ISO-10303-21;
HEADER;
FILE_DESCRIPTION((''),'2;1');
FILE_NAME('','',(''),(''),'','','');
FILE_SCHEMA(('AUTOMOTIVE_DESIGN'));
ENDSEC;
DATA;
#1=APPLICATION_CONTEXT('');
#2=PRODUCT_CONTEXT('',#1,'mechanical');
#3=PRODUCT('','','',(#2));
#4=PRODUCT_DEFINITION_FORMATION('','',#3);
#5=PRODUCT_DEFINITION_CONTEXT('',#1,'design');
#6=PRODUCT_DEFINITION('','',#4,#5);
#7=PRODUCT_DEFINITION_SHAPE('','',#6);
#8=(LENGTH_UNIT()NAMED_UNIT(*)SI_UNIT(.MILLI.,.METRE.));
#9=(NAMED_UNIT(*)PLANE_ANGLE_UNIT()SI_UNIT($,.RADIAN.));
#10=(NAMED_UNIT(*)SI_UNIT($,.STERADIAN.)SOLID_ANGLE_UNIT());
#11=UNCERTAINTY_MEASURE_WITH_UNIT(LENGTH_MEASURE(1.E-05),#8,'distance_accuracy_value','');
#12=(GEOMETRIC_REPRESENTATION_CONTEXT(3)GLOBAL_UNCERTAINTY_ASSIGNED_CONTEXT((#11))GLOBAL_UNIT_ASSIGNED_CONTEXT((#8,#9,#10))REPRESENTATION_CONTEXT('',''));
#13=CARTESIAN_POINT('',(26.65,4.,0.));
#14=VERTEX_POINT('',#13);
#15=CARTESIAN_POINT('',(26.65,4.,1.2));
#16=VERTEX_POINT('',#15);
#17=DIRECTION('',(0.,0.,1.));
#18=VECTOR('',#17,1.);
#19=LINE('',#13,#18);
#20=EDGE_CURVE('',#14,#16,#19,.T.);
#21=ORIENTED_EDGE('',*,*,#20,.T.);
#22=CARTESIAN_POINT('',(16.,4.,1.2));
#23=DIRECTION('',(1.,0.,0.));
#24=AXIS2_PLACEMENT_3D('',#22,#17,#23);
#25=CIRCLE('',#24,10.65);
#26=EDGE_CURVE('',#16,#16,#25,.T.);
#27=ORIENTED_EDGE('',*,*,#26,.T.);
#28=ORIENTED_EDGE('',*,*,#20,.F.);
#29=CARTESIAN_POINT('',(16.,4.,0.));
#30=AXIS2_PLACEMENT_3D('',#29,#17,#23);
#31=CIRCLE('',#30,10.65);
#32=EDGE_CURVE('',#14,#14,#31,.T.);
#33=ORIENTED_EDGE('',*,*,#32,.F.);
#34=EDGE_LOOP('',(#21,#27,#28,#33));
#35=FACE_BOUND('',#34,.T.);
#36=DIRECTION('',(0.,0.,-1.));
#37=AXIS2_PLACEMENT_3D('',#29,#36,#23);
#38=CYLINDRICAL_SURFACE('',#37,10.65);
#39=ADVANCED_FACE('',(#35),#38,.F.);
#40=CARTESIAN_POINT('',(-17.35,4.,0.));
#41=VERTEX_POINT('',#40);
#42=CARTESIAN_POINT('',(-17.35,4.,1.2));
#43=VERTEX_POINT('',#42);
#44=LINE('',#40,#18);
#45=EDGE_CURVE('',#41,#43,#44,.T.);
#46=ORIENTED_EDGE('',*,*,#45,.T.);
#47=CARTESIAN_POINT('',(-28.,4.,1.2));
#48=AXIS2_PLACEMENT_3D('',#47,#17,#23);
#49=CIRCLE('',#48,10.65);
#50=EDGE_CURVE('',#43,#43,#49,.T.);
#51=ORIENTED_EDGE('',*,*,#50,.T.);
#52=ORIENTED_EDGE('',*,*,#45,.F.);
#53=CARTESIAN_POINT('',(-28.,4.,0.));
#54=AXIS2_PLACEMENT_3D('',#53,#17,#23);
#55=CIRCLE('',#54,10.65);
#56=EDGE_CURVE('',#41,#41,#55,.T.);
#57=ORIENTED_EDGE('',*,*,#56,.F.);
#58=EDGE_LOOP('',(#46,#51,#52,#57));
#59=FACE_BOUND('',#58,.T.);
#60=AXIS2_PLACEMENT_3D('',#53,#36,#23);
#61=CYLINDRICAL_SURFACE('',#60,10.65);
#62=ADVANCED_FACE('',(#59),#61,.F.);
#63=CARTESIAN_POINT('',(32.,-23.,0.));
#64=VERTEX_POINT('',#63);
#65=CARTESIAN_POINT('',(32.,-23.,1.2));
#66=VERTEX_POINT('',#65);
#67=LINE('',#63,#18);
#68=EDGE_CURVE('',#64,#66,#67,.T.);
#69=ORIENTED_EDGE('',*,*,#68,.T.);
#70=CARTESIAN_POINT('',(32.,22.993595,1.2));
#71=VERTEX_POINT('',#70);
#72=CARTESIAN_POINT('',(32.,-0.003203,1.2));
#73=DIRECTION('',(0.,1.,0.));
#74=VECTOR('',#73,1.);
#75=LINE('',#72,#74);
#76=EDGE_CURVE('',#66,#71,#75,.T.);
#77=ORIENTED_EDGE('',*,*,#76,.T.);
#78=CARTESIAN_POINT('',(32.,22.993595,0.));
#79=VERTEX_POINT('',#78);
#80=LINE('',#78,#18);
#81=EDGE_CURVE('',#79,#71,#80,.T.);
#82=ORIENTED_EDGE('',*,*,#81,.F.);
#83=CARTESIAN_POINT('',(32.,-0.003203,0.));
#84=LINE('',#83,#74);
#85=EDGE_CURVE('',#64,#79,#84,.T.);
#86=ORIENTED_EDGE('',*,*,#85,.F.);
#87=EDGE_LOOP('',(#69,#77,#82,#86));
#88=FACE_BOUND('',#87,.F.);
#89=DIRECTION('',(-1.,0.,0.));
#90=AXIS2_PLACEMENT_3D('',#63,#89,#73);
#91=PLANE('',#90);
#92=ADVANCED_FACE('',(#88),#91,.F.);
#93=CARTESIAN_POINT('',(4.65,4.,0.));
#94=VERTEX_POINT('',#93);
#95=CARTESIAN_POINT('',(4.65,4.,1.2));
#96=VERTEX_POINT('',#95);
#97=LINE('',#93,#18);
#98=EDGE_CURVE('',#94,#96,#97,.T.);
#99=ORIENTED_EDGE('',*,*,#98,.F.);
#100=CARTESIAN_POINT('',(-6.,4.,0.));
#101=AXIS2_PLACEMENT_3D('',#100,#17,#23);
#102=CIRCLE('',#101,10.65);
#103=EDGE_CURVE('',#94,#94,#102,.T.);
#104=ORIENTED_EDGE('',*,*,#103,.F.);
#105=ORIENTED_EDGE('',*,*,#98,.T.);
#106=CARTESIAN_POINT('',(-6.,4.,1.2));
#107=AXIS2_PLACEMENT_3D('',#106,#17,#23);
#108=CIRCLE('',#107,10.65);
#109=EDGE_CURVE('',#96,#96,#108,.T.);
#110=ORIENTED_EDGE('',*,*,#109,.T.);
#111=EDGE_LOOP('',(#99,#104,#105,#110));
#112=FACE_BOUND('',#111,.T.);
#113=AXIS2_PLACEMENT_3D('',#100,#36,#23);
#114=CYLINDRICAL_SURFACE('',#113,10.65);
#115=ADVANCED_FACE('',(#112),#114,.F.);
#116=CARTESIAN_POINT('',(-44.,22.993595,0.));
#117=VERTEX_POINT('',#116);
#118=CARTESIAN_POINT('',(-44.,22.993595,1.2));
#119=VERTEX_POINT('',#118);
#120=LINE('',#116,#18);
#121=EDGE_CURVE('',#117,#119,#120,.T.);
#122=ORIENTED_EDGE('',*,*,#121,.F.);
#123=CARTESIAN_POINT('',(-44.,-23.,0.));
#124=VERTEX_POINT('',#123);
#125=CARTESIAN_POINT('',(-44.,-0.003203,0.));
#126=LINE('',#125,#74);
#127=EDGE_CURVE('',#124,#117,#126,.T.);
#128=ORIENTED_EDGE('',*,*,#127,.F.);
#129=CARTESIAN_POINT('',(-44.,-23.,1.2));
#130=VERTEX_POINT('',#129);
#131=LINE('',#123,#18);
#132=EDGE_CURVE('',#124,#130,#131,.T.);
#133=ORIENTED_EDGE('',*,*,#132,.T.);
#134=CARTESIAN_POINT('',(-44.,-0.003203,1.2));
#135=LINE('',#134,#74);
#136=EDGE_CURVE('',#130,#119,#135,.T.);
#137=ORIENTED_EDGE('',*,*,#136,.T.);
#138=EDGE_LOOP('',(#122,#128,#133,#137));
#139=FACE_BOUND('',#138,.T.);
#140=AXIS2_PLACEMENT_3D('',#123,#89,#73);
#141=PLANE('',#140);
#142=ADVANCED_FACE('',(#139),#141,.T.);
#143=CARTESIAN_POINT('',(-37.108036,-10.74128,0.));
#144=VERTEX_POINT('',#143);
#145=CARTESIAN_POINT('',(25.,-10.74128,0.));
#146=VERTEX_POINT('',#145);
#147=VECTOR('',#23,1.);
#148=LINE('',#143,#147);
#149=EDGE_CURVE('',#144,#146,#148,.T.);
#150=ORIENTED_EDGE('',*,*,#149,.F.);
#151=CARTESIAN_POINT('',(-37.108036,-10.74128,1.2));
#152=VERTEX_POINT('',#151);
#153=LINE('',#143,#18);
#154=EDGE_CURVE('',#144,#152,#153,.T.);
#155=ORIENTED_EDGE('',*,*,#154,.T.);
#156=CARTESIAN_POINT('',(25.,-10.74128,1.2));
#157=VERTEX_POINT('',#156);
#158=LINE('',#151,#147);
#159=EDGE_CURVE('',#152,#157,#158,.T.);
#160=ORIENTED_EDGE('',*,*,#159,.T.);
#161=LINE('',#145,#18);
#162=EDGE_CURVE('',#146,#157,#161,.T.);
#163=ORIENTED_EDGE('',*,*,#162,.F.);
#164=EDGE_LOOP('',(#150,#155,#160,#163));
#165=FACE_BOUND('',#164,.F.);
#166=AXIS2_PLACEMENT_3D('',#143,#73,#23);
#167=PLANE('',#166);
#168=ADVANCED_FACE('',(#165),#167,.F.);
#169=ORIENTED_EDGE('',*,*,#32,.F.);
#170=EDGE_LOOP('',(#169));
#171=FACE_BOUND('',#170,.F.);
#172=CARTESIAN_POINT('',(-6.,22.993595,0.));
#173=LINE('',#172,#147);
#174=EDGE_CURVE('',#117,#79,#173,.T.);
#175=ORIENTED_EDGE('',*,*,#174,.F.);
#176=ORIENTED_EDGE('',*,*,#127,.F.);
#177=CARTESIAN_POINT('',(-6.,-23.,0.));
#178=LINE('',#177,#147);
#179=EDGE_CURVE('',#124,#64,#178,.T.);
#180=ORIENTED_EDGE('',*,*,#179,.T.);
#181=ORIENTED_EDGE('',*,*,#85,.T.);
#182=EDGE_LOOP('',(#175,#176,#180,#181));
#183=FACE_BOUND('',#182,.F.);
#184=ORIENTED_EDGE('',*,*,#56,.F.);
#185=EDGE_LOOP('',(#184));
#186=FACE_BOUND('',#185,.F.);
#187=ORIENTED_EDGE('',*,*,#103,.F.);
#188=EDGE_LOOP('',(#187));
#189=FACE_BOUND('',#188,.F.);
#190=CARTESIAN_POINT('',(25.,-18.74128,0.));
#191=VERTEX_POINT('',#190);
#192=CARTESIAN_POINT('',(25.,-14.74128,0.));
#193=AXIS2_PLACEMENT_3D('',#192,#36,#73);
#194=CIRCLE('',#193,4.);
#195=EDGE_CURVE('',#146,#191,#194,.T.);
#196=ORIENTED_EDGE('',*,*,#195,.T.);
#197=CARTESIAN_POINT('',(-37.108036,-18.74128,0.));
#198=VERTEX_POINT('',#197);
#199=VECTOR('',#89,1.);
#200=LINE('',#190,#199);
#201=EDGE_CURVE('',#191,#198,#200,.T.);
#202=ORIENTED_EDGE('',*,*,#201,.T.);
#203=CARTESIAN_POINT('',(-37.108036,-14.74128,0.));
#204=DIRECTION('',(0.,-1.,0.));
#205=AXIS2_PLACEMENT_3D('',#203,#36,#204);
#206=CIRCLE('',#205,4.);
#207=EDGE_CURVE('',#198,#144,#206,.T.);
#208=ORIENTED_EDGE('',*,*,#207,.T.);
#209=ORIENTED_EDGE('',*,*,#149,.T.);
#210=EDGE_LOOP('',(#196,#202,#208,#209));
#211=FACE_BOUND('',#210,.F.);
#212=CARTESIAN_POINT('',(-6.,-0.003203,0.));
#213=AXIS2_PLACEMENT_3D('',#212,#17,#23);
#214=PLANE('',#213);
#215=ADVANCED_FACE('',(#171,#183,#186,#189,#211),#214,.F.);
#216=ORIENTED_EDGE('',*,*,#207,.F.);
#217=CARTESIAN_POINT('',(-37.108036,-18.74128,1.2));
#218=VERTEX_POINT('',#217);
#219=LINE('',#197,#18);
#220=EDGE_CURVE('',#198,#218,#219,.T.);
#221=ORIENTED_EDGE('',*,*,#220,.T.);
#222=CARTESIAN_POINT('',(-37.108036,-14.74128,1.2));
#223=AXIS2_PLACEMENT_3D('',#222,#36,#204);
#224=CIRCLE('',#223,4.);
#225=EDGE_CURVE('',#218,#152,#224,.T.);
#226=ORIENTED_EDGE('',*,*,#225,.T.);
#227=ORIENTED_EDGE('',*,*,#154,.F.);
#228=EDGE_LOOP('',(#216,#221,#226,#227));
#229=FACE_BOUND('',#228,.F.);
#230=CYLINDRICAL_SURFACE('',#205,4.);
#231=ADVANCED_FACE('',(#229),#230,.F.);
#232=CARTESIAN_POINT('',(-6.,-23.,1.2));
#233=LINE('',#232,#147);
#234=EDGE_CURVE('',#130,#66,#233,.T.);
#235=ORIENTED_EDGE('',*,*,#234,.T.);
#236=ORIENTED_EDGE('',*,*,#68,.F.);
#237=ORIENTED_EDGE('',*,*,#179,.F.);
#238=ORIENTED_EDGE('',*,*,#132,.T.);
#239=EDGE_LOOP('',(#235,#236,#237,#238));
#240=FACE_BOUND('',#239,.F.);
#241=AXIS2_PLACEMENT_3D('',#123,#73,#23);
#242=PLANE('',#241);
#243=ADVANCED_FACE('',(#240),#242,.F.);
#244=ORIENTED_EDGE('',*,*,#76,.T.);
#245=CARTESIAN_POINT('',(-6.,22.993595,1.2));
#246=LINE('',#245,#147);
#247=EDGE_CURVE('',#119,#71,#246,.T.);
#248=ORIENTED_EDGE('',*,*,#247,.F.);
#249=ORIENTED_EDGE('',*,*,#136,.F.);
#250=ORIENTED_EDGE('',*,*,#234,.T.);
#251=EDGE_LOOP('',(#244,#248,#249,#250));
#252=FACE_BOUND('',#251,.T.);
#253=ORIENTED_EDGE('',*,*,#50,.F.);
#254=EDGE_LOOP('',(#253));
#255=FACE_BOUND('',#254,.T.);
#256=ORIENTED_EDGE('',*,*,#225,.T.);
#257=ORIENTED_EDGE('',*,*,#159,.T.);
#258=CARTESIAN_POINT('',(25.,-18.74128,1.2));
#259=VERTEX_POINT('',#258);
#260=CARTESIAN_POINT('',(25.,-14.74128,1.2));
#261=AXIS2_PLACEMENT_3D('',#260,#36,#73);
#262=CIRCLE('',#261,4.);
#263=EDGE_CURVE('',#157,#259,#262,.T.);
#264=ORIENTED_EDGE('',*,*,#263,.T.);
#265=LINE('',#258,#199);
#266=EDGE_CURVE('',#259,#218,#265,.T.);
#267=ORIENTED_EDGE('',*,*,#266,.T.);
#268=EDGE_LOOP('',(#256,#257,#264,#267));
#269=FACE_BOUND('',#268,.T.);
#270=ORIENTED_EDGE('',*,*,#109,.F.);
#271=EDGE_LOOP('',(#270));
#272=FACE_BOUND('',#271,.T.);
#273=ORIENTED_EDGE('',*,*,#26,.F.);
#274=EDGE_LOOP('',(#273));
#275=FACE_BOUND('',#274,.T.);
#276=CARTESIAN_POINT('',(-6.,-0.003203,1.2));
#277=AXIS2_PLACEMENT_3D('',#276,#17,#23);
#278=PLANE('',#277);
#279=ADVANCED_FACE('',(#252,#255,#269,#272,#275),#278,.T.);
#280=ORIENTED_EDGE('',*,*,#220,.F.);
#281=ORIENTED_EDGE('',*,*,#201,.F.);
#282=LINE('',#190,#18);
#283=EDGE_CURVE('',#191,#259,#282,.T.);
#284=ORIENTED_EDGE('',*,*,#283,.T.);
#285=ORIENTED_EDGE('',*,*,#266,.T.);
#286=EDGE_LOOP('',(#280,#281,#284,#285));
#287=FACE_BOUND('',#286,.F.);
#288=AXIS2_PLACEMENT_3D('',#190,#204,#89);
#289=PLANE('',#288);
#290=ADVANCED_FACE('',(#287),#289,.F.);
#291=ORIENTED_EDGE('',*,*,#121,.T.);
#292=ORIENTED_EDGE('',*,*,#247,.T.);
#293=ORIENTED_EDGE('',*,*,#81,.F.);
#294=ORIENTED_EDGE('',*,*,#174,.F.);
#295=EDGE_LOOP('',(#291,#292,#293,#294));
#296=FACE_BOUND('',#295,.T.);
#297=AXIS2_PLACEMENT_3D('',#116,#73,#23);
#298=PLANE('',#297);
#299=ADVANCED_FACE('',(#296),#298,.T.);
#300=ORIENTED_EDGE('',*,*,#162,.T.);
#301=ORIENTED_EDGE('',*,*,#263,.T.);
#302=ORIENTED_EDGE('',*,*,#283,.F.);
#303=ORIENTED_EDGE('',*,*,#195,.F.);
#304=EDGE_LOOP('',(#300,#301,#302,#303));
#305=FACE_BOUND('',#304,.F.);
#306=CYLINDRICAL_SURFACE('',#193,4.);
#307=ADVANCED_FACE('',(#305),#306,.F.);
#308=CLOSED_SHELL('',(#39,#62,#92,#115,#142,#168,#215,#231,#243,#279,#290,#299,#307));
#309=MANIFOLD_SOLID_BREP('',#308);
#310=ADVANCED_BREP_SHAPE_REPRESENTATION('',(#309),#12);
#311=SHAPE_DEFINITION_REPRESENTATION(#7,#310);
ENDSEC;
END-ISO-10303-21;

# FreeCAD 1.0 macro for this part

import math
import FreeCAD as App
import Part
import Sketcher
from FreeCAD import Vector
Q = App.Units.Quantity


def add_polygon(sketch, points):
    """Adds a closed chain of lines whose ends are joined by coincident constraints."""
    first, n = sketch.GeometryCount, len(points)
    for a, b in zip(points, points[1:] + points[:1]):
        sketch.addGeometry(Part.LineSegment(App.Vector(*a, 0), App.Vector(*b, 0)), False)
    for i in range(n):
        sketch.addConstraint(Sketcher.Constraint("Coincident", first + i, 2, first + (i + 1) % n, 1))

doc = App.newDocument("Part")
body = doc.addObject("PartDesign::Body", "Body")

# Sketch on XY plane
sketch1 = body.newObject("Sketcher::SketchObject", "Sketch")
sketch1.AttachmentSupport = (doc.getObject("XY_Plane"), [""])
sketch1.MapMode = "FlatFace"
add_polygon(sketch1, [(-44, 23), (-44, -23), (32, -23), (32, 23)])  # lines 0-3
sketch1.addGeometry(Part.LineSegment(Vector(-37.1, -10.7, 0), Vector(25, -10.7, 0)), False)  # 4
sketch1.addGeometry(Part.ArcOfCircle(Part.Circle(Vector(25, -14.7, 0), Vector(0, 0, 1), 4), math.radians(-90), math.radians(90)), False)  # 5
sketch1.addGeometry(Part.LineSegment(Vector(25, -18.7, 0), Vector(-37.1, -18.7, 0)), False)  # 6
sketch1.addGeometry(Part.ArcOfCircle(Part.Circle(Vector(-37.1, -14.7, 0), Vector(0, 0, 1), 4), math.radians(90), math.radians(270)), False)  # 7
sketch1.addGeometry(Part.Circle(Vector(-28, 4, 0), Vector(0, 0, 1), 10.7), False)  # 8
sketch1.addGeometry(Part.Circle(Vector(-6, 4, 0), Vector(0, 0, 1), 10.7), False)  # 9
sketch1.addGeometry(Part.Circle(Vector(16, 4, 0), Vector(0, 0, 1), 10.7), False)  # 10
sketch1.addConstraint(Sketcher.Constraint("Tangent", 4, 2, 5, 2))
sketch1.addConstraint(Sketcher.Constraint("Tangent", 5, 1, 6, 1))
sketch1.addConstraint(Sketcher.Constraint("Tangent", 6, 2, 7, 2))
sketch1.addConstraint(Sketcher.Constraint("Tangent", 7, 1, 4, 1))
sketch1.addConstraint(Sketcher.Constraint("Vertical", 0))
sketch1.addConstraint(Sketcher.Constraint("Horizontal", 1))
sketch1.addConstraint(Sketcher.Constraint("Vertical", 2))
sketch1.addConstraint(Sketcher.Constraint("Horizontal", 3))
sketch1.addConstraint(Sketcher.Constraint("Horizontal", 4))
sketch1.addConstraint(Sketcher.Constraint("Horizontal", 6))
sketch1.addConstraint(Sketcher.Constraint("Equal", 8, 9))
sketch1.addConstraint(Sketcher.Constraint("Equal", 9, 10))
sketch1.addConstraint(Sketcher.Constraint("Horizontal", 8, 3, 9, 3))
sketch1.addConstraint(Sketcher.Constraint("Horizontal", 9, 3, 10, 3))
sketch1.addConstraint(Sketcher.Constraint("Radius", 5, Q("4 mm")))
sketch1.addConstraint(Sketcher.Constraint("Diameter", 8, Q("21.3 mm")))
sketch1.addConstraint(Sketcher.Constraint("DistanceX", 1, 1, 1, 2, Q("76 mm")))
sketch1.addConstraint(Sketcher.Constraint("DistanceX", -1, 1, 5, 3, Q("25 mm")))
sketch1.addConstraint(Sketcher.Constraint("DistanceX", 8, 3, -1, 1, Q("28 mm")))
sketch1.addConstraint(Sketcher.Constraint("DistanceY", -1, 1, 8, 3, Q("4 mm")))
sketch1.addConstraint(Sketcher.Constraint("DistanceX", 9, 3, -1, 1, Q("6 mm")))
sketch1.addConstraint(Sketcher.Constraint("DistanceX", -1, 1, 10, 3, Q("16 mm")))
sketch1.addConstraint(Sketcher.Constraint("DistanceX", 0, 2, -1, 1, Q("44 mm")))
sketch1.addConstraint(Sketcher.Constraint("DistanceY", 0, 2, -1, 1, Q("23 mm")))
sketch1.addConstraint(Sketcher.Constraint("DistanceX", 4, 1, 4, 2, Q("62.108036 mm")))
sketch1.addConstraint(Sketcher.Constraint("DistanceY", 0, 2, 0, 1, Q("45.993595 mm")))
sketch1.addConstraint(Sketcher.Constraint("DistanceY", 5, 3, -1, 1, Q("14.74128 mm")))
pad1 = body.newObject("PartDesign::Pad", "Pad")
pad1.Profile = sketch1
pad1.Length = 1.2

doc.recompute()
